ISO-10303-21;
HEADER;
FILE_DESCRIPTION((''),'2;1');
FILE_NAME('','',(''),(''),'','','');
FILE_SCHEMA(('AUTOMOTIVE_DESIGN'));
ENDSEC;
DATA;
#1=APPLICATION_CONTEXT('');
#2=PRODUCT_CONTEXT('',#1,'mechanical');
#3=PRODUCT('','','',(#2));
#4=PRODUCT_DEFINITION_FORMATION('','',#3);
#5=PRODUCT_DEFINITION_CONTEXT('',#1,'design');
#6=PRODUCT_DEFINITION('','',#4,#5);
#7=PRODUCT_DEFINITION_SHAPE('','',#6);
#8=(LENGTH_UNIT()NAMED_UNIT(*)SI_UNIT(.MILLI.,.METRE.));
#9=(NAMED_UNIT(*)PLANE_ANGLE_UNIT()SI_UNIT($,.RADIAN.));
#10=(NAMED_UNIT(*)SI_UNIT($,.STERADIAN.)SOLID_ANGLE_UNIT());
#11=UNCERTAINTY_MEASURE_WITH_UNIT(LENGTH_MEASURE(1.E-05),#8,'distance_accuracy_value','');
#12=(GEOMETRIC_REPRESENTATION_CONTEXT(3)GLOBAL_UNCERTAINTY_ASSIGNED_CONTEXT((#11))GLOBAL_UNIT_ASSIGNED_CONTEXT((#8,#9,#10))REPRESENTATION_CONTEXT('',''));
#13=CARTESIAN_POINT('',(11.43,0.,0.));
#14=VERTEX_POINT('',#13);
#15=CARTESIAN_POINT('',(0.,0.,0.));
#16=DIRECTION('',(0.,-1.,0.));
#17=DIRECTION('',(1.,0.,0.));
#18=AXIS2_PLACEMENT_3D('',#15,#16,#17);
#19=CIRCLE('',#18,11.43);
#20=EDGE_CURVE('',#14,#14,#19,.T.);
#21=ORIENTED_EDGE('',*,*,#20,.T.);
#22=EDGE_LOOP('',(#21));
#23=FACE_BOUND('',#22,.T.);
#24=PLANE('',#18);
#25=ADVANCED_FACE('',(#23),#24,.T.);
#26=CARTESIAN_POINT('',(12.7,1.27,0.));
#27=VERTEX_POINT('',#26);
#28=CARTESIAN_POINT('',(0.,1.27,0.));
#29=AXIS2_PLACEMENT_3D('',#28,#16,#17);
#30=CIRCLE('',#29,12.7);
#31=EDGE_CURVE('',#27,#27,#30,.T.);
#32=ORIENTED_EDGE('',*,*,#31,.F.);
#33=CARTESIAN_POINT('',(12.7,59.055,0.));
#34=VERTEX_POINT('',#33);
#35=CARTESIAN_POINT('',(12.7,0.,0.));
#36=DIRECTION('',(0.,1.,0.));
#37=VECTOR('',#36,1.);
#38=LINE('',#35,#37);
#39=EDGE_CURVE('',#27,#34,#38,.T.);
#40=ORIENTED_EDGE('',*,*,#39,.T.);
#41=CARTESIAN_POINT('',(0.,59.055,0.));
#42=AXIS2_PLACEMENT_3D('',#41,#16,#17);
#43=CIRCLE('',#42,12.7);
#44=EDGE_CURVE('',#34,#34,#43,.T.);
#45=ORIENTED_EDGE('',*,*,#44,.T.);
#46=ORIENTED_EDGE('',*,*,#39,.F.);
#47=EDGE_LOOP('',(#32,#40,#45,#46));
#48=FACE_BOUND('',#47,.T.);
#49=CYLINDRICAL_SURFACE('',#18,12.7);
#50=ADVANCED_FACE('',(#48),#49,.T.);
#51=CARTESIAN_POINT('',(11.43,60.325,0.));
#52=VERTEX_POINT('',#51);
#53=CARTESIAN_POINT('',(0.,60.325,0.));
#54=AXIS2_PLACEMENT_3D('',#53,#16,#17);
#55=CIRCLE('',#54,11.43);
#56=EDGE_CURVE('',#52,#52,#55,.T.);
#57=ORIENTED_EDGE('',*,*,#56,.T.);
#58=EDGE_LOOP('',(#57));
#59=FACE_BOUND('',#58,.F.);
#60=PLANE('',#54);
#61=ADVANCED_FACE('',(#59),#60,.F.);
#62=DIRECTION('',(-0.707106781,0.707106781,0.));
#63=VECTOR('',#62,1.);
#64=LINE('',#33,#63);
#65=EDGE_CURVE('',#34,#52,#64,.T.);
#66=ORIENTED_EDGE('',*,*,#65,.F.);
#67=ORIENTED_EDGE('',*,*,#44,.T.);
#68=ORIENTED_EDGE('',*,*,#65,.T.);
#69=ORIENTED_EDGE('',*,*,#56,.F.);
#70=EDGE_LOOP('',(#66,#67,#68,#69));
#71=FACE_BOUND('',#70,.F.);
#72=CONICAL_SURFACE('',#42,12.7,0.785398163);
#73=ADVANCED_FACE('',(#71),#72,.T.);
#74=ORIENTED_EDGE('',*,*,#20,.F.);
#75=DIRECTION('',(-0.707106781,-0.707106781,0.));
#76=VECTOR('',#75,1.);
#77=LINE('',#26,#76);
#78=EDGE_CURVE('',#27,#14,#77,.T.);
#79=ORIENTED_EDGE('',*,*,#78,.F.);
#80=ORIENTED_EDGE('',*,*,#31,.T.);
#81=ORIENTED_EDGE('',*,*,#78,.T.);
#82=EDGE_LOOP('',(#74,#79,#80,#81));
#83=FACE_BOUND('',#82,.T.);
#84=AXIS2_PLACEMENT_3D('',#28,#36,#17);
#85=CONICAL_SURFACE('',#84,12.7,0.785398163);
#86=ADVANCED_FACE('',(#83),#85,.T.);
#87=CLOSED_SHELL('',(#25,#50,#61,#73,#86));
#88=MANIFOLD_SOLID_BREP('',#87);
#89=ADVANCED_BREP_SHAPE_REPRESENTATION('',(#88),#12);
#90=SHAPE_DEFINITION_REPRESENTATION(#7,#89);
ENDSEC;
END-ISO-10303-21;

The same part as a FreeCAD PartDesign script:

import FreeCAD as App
import Part
import Sketcher
Q = App.Units.Quantity


def edges_at(feature, points):
    """Names of the edges that pass closest to the given points."""
    edges = feature.Shape.Edges
    near = lambda p: min(range(len(edges)), key=lambda i: edges[i].distToShape(Part.Vertex(*p))[0])
    return sorted({f"Edge{near(p) + 1}" for p in points})

doc = App.newDocument("Part")
body = doc.addObject("PartDesign::Body", "Body")

# Sketch on XZ plane
sketch1 = body.newObject("Sketcher::SketchObject", "Sketch")
sketch1.AttachmentSupport = (doc.getObject("XZ_Plane"), [""])
sketch1.MapMode = "FlatFace"
sketch1.addGeometry(Part.Circle(App.Vector(0, 0, 0), App.Vector(0, 0, 1), 13), False)
sketch1.addConstraint([
    Sketcher.Constraint("Coincident", 0, 3, -1, 1),
    Sketcher.Constraint("Diameter", 0, Q("1 in")),
])
pad1 = body.newObject("PartDesign::Pad", "Pad")
pad1.Profile = sketch1
pad1.Length = Q("2.375 in")
pad1.Reversed = True
doc.recompute()

chamfer = body.newObject("PartDesign::Chamfer", "Chamfer")
chamfer.Base = (pad1, edges_at(pad1, [(-12.7, 0, 0), (-12.7, 60.325, 0)]))
chamfer.ChamferType = "Two distances"
chamfer.Size = Q("0.05 in")
chamfer.Size2 = Q("0.05 in")

doc.recompute()
